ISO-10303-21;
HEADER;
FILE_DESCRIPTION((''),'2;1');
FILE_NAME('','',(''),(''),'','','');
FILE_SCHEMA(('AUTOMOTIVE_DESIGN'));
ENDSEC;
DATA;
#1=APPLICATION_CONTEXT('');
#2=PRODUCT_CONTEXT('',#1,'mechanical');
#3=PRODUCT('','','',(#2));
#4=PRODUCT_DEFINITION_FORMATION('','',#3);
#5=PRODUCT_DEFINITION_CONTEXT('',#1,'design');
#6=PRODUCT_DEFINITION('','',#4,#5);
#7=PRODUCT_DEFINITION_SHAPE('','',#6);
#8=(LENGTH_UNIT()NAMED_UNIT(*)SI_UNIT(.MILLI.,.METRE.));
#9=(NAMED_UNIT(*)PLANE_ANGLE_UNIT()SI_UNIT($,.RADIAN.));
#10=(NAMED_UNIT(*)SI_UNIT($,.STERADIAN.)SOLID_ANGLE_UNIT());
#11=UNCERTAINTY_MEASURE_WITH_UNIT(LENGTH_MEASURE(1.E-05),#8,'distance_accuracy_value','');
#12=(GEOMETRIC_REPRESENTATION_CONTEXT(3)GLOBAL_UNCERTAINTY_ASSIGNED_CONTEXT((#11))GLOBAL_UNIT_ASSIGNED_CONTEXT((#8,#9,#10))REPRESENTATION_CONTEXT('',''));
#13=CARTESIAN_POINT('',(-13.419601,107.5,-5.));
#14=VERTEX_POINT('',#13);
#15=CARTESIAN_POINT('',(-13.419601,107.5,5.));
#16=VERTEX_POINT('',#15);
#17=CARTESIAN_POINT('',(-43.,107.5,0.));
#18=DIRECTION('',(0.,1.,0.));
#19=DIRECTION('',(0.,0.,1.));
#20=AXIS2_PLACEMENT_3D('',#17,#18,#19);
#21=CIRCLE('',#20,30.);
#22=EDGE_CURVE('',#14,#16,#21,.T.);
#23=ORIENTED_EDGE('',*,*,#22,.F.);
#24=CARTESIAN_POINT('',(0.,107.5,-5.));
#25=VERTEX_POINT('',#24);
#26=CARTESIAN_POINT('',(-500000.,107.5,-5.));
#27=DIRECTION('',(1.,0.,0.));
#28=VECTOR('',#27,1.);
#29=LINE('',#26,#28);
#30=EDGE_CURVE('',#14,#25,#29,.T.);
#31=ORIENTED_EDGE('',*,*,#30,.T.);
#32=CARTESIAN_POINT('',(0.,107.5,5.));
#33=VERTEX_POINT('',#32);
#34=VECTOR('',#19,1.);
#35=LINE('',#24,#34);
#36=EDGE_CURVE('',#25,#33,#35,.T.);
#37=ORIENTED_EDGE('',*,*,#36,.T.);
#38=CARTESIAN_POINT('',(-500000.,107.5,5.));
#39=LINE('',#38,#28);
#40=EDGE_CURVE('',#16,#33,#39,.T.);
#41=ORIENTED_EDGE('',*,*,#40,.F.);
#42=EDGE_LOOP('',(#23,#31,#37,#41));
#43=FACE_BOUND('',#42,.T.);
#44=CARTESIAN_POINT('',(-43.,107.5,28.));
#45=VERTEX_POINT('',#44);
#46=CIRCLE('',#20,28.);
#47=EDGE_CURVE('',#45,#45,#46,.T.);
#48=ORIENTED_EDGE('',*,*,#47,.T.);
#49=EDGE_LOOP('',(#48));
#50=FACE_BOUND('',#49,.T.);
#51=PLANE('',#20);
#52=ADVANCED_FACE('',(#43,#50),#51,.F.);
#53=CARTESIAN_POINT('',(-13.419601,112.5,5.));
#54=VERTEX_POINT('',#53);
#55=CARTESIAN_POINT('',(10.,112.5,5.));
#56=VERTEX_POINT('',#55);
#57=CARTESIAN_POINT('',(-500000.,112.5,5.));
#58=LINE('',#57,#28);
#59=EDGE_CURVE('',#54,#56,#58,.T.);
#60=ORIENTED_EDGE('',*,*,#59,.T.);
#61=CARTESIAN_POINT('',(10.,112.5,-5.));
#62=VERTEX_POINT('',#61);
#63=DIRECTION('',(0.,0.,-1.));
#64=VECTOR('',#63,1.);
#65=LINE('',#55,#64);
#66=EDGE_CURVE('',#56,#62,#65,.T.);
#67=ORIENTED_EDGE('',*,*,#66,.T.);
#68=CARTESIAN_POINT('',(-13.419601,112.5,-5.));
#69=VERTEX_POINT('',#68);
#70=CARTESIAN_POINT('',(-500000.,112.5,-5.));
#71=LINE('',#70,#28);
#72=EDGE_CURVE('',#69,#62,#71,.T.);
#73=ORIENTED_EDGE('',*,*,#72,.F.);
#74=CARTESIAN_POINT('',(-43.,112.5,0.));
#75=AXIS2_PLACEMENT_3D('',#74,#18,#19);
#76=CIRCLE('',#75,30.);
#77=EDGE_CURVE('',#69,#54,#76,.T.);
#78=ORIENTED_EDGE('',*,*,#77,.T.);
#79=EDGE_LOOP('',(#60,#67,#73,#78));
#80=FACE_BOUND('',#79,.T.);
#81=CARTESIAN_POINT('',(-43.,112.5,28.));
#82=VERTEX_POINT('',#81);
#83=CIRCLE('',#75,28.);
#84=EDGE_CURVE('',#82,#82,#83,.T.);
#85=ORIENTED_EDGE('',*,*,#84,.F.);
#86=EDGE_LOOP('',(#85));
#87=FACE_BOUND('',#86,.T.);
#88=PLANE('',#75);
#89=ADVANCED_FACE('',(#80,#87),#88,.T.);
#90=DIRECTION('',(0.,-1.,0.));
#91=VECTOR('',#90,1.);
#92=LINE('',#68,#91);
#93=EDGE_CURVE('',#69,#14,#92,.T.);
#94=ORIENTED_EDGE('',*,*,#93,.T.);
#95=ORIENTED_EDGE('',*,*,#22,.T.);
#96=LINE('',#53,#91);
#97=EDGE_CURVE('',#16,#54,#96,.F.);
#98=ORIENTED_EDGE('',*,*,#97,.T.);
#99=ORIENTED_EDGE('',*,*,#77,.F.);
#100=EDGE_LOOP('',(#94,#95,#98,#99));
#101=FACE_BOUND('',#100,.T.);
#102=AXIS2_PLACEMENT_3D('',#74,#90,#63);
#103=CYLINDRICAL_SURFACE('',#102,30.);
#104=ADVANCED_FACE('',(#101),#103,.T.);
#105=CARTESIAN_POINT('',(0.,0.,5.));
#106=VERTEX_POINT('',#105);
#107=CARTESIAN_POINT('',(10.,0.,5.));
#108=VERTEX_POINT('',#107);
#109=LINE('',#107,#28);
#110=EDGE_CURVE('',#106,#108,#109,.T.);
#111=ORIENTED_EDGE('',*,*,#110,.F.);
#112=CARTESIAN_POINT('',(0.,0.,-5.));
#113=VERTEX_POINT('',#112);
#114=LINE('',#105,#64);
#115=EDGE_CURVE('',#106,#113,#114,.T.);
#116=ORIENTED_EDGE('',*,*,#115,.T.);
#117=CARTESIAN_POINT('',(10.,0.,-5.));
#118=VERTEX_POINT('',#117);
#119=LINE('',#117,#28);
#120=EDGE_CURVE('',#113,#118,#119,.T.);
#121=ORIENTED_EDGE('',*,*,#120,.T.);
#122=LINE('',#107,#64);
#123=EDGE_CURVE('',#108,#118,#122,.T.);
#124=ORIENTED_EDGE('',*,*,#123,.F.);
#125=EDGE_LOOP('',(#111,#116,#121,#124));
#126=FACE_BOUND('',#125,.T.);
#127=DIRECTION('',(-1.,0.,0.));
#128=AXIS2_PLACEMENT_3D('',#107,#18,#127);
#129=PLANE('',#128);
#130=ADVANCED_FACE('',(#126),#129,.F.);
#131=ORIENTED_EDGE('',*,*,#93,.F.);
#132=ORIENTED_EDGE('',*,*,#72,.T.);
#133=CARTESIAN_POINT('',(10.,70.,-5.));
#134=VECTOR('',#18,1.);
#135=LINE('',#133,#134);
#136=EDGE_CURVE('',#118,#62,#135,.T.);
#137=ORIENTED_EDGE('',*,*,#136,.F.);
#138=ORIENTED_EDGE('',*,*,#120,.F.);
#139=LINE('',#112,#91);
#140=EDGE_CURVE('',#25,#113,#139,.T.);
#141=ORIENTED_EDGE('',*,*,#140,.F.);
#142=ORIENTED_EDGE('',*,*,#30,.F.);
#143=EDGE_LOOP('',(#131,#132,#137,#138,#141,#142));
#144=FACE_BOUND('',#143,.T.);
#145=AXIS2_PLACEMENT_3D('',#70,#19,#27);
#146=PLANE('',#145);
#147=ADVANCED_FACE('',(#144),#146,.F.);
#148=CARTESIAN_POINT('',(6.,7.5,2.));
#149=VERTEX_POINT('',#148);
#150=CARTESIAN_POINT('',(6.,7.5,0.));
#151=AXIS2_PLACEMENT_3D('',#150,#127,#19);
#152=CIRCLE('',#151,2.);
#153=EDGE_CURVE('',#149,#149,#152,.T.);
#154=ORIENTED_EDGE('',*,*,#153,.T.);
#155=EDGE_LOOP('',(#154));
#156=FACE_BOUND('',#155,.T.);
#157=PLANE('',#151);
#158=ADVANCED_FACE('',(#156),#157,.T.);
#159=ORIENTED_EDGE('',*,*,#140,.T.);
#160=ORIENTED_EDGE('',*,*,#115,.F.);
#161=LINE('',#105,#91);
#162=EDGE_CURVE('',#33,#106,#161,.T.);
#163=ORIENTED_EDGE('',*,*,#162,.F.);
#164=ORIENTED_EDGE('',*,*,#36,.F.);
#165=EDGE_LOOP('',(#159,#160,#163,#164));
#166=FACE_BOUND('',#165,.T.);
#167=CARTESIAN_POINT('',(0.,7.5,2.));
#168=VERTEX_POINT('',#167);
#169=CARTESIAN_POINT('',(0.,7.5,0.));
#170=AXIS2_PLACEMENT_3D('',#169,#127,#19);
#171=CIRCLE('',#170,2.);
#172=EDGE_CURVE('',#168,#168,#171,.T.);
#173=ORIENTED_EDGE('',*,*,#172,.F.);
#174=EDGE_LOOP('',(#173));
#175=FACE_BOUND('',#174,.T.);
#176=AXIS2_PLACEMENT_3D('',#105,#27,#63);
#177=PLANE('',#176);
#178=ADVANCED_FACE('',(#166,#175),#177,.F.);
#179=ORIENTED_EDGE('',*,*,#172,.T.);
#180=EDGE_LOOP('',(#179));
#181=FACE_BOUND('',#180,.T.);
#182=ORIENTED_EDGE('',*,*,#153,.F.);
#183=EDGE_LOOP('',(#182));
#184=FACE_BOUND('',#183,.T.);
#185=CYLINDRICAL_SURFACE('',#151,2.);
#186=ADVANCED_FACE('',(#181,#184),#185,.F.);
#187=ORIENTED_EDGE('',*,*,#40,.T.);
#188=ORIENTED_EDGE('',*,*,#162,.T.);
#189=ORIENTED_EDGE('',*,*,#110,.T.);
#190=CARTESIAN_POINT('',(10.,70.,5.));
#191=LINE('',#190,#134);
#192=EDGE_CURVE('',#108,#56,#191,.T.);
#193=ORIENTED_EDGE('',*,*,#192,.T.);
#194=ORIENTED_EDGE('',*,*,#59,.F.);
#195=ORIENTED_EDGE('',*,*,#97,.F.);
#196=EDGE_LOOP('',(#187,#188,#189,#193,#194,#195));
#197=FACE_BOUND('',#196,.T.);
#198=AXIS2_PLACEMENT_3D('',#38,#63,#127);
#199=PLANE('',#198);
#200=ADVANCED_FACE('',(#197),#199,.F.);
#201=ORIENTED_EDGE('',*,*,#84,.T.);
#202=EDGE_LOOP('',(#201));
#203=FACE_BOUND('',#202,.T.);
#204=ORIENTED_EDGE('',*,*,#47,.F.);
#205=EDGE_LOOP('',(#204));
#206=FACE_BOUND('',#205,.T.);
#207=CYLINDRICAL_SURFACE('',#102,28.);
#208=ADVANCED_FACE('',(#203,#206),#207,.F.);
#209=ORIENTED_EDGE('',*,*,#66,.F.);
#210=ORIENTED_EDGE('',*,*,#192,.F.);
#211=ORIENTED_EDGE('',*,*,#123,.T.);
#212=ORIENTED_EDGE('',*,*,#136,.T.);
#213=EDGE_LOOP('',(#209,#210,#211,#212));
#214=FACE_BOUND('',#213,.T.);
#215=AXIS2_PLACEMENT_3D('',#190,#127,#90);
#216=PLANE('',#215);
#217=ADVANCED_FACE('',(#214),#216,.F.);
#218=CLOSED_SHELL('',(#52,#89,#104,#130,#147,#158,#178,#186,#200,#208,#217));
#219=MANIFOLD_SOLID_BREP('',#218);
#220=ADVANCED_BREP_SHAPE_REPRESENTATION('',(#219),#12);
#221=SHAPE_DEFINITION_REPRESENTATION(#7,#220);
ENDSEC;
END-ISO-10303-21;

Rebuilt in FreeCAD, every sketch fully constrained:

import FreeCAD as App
import Part
import Sketcher

V = App.Vector
Q = App.Units.Quantity


def add_polygon(sketch, points):
    """Adds a closed chain of lines whose ends are joined by coincident constraints."""
    first, n = sketch.GeometryCount, len(points)
    for a, b in zip(points, points[1:] + points[:1]):
        sketch.addGeometry(Part.LineSegment(App.Vector(*a, 0), App.Vector(*b, 0)), False)
    for i in range(n):
        sketch.addConstraint(Sketcher.Constraint("Coincident", first + i, 2, first + (i + 1) % n, 1))

doc = App.newDocument("Part")
body = doc.addObject("PartDesign::Body", "Body")

# Sketch on XY plane
sketch1 = body.newObject("Sketcher::SketchObject", "Sketch")
sketch1.AttachmentSupport = (doc.getObject("XY_Plane"), [""])
sketch1.MapMode = "FlatFace"
add_polygon(sketch1, [(0, 70), (0, 0), (10, 0), (10, 70)])  # lines 0-3
sketch1.addConstraint([
    Sketcher.Constraint("Vertical", 0),
    Sketcher.Constraint("Horizontal", 1),
    Sketcher.Constraint("Vertical", 2),
    Sketcher.Constraint("Horizontal", 3),
    Sketcher.Constraint("Coincident", 0, 2, -1, 1),
    Sketcher.Constraint("DistanceX", 1, 1, 1, 2, Q("10 mm")),
    Sketcher.Constraint("DistanceY", 0, 2, 0, 1, Q("70 mm")),
])
pad1 = body.newObject("PartDesign::Pad", "Pad")
pad1.Profile = sketch1
pad1.Length = 10
pad1.Midplane = True
body2 = doc.addObject("PartDesign::Body", "Body001")

# Sketch on XZ plane
sketch2 = body2.newObject("Sketcher::SketchObject", "Sketch001")
sketch2.AttachmentSupport = (doc.getObject("XZ_Plane001"), [""])
sketch2.MapMode = "FlatFace"
sketch2.AttachmentOffset = App.Placement(V(0, 0, -110), App.Rotation())
sketch2.addGeometry([
    Part.Circle(V(-43, 0, 0), V(0, 0, 1), 30),
    Part.Circle(V(-43, 0, 0), V(0, 0, 1), 28),
], False)
sketch2.addConstraint([
    Sketcher.Constraint("Coincident", 1, 3, 0, 3),
    Sketcher.Constraint("PointOnObject", 0, 3, -1),
    Sketcher.Constraint("Diameter", 0, Q("60 mm")),
    Sketcher.Constraint("Diameter", 1, Q("56 mm")),
    Sketcher.Constraint("DistanceX", 0, 3, -1, 1, Q("43 mm")),
])
pad2 = body2.newObject("PartDesign::Pad", "Pad001")
pad2.Profile = sketch2
pad2.Length = 5
pad2.Midplane = True
body3 = doc.addObject("PartDesign::Body", "Body002")
body3.AllowCompound = True

# Sketch on XZ plane
sketch3 = body3.newObject("Sketcher::SketchObject", "Sketch002")
sketch3.AttachmentSupport = (doc.getObject("XZ_Plane002"), [""])
sketch3.MapMode = "FlatFace"
sketch3.AttachmentOffset = App.Placement(V(0, 0, -110), App.Rotation())
add_polygon(sketch3, [(-12, -5), (-12, 5), (10, 5), (10, -5)])  # lines 0-3
sketch3.addConstraint([
    Sketcher.Constraint("Vertical", 0),
    Sketcher.Constraint("Horizontal", 1),
    Sketcher.Constraint("Vertical", 2),
    Sketcher.Constraint("Horizontal", 3),
    Sketcher.Constraint("DistanceX", 1, 1, 1, 2, Q("22 mm")),
    Sketcher.Constraint("DistanceY", 0, 1, 0, 2, Q("10 mm")),
    Sketcher.Constraint("DistanceX", 0, 2, -1, 1, Q("12 mm")),
    Sketcher.Constraint("DistanceY", -1, 1, 0, 2, Q("5 mm")),
])
pad3 = body3.newObject("PartDesign::Pad", "Pad002")
pad3.Profile = sketch3
pad3.Length = 5
pad3.Midplane = True
doc.recompute()

boolean = body3.newObject("PartDesign::Boolean", "Boolean")
boolean.Type = "Fuse"
boolean.addObjects([body])

# Sketch on XZ plane
sketch4 = body3.newObject("Sketcher::SketchObject", "Sketch003")
sketch4.AttachmentSupport = (doc.getObject("XZ_Plane002"), [""])
sketch4.MapMode = "FlatFace"
sketch4.AttachmentOffset = App.Placement(V(0, 0, -70), App.Rotation())
add_polygon(sketch4, [(0, -5), (0, 5), (10, 5), (10, -5)])  # lines 0-3
sketch4.addConstraint([
    Sketcher.Constraint("Vertical", 0),
    Sketcher.Constraint("Horizontal", 1),
    Sketcher.Constraint("Vertical", 2),
    Sketcher.Constraint("Horizontal", 3),
    Sketcher.Constraint("Symmetric", 0, 2, 3, 2, -1, 1),
    Sketcher.Constraint("Equal", 3, 0),
    Sketcher.Constraint("DistanceX", 1, 1, 1, 2, Q("10 mm")),
])
pad4 = body3.newObject("PartDesign::Pad", "Pad003")
pad4.Profile = sketch4
pad4.Type = "UpToFirst"
pad4.Reversed = True
body2.AllowCompound = True
doc.recompute()

boolean2 = body2.newObject("PartDesign::Boolean", "Boolean001")
boolean2.Type = "Fuse"
boolean2.addObjects([body3])

# Sketch on YZ plane
sketch5 = body2.newObject("Sketcher::SketchObject", "Sketch004")
sketch5.AttachmentSupport = (doc.getObject("YZ_Plane001"), [""])
sketch5.MapMode = "FlatFace"
sketch5.AttachmentOffset = App.Placement(V(0, 0, -12), App.Rotation())
add_polygon(sketch5, [(112, -5), (108, -5), (108, 5), (112, 5)])  # lines 0-3
sketch5.addConstraint([
    Sketcher.Constraint("Horizontal", 0),
    Sketcher.Constraint("Vertical", 1),
    Sketcher.Constraint("Horizontal", 2),
    Sketcher.Constraint("Vertical", 3),
    Sketcher.Constraint("DistanceX", 0, 2, 0, 1, Q("5 mm")),
    Sketcher.Constraint("DistanceY", 1, 1, 1, 2, Q("10 mm")),
    Sketcher.Constraint("DistanceY", 0, 2, -1, 1, Q("5 mm")),
    Sketcher.Constraint("DistanceX", -1, 1, 0, 2, Q("107.5 mm")),
])
pad5 = body2.newObject("PartDesign::Pad", "Pad004")
pad5.Profile = sketch5
pad5.Type = "UpToFirst"
pad5.Reversed = True

# Sketch on YZ plane
sketch6 = body2.newObject("Sketcher::SketchObject", "Sketch005")
sketch6.AttachmentSupport = (doc.getObject("YZ_Plane001"), [""])
sketch6.MapMode = "FlatFace"
sketch6.addGeometry(Part.Circle(V(7.5, 0, 0), V(0, 0, 1), 2), False)
sketch6.addConstraint([
    Sketcher.Constraint("PointOnObject", 0, 3, -1),
    Sketcher.Constraint("Diameter", 0, Q("4 mm")),
    Sketcher.Constraint("DistanceX", -1, 1, 0, 3, Q("7.5 mm")),
])
pocket1 = body2.newObject("PartDesign::Pocket", "Pocket")
pocket1.Profile = sketch6
pocket1.Length = 6
pocket1.Reversed = True

doc.recompute()
